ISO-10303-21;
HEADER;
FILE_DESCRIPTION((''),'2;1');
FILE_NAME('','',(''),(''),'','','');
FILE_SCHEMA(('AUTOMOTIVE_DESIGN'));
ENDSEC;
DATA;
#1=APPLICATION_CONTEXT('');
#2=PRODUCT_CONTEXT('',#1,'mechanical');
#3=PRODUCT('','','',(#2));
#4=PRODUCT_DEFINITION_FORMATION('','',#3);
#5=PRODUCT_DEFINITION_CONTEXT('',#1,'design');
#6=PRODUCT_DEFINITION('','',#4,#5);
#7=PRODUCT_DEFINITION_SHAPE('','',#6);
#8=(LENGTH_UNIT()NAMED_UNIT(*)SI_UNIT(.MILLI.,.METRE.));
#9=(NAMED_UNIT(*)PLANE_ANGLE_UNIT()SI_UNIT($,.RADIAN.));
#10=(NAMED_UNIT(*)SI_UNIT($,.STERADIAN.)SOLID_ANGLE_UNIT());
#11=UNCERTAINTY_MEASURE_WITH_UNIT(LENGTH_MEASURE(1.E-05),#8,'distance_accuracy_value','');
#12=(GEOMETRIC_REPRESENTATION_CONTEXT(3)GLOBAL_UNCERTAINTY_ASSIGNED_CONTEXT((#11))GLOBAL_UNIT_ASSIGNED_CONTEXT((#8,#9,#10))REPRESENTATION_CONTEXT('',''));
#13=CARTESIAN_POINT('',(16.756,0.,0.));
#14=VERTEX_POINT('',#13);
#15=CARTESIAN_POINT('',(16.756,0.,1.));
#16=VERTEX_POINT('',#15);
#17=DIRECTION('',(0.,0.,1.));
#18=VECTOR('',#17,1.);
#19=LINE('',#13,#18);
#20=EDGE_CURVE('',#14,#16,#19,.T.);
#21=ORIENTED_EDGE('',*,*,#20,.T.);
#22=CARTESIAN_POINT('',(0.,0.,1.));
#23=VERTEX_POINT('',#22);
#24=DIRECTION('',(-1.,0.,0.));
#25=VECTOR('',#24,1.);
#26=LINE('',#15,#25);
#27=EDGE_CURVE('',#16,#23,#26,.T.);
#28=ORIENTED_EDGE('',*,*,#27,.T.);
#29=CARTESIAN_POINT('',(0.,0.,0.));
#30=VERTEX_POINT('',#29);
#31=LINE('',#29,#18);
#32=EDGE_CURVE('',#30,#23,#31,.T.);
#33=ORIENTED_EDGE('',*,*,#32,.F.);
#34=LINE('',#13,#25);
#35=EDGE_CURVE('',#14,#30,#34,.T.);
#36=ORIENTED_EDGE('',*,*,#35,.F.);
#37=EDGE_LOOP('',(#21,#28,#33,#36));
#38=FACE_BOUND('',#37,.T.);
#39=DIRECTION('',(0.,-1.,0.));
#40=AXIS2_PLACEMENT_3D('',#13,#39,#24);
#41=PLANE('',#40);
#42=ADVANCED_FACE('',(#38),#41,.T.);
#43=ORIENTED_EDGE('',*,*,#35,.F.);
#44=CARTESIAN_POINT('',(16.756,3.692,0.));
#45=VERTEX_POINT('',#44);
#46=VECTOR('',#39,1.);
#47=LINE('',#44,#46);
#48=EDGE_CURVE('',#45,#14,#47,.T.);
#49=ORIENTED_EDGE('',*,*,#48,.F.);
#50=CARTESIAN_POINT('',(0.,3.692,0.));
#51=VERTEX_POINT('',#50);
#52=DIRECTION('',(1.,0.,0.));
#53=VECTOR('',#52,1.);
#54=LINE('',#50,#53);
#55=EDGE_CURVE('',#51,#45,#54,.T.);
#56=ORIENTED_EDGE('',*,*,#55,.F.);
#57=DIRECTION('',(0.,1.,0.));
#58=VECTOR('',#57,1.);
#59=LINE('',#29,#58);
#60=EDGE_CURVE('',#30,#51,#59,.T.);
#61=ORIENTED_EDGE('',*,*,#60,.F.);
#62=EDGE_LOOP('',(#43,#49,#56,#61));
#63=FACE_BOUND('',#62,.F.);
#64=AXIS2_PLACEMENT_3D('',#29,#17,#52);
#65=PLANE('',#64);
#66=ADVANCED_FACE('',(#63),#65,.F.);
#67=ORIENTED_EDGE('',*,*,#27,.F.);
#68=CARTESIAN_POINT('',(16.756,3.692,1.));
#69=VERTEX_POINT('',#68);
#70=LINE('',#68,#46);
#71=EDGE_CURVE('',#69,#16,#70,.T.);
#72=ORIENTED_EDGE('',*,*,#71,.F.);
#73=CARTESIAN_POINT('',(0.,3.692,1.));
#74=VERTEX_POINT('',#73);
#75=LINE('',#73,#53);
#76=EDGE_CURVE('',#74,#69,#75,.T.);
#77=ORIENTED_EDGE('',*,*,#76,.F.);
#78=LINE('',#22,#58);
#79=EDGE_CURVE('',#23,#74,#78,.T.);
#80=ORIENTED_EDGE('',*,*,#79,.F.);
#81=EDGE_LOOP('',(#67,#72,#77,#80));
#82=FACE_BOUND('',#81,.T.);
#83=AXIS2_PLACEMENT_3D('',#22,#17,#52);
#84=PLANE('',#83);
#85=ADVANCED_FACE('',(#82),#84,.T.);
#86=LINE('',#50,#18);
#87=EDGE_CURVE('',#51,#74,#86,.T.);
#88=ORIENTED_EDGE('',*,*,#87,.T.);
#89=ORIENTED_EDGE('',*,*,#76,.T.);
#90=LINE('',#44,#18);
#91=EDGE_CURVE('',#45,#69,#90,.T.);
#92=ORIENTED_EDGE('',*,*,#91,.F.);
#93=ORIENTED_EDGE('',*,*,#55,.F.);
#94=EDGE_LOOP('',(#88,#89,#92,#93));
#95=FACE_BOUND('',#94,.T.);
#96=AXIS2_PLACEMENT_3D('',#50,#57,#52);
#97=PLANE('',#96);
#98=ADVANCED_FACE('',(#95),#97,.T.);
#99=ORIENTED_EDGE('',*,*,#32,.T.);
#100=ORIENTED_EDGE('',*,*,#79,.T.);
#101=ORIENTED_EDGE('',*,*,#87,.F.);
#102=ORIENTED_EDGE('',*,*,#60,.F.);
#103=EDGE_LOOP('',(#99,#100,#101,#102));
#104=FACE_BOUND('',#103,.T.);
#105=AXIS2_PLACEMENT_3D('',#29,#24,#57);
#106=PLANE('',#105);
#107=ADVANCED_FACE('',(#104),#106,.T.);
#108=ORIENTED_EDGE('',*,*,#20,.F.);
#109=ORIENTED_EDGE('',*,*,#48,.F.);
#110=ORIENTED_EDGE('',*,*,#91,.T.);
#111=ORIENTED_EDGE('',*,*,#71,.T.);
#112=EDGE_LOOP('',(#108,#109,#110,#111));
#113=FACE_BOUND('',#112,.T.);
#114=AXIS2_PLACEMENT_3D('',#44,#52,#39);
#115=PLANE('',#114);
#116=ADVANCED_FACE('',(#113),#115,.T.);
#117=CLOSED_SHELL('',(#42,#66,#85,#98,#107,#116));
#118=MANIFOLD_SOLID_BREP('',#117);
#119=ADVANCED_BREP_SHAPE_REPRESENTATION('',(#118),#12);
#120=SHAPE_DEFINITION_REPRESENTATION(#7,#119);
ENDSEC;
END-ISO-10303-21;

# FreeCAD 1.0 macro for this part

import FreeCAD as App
import Part
import Sketcher
from FreeCAD import Vector

doc = App.newDocument("Part")
body = doc.addObject("PartDesign::Body", "Body")

# Sketch on XY plane
sketch1 = body.newObject("Sketcher::SketchObject", "Sketch")
sketch1.AttachmentSupport = (doc.getObject("XY_Plane"), [""])
sketch1.MapMode = "FlatFace"
sketch1.addGeometry(Part.LineSegment(Vector(16.8, 3.7, 0), Vector(0, 3.7, 0)), False)
sketch1.addGeometry(Part.LineSegment(Vector(0, 3.7, 0), Vector(0, 0, 0)), False)
sketch1.addGeometry(Part.LineSegment(Vector(0, 0, 0), Vector(16.8, 0, 0)), False)
sketch1.addGeometry(Part.LineSegment(Vector(16.8, 0, 0), Vector(16.8, 3.7, 0)), False)
sketch1.addConstraint(Sketcher.Constraint("Coincident", 0, 2, 1, 1))
sketch1.addConstraint(Sketcher.Constraint("Coincident", 1, 2, 2, 1))
sketch1.addConstraint(Sketcher.Constraint("Coincident", 2, 2, 3, 1))
sketch1.addConstraint(Sketcher.Constraint("Coincident", 3, 2, 0, 1))
sketch1.addConstraint(Sketcher.Constraint("Horizontal", 0))
sketch1.addConstraint(Sketcher.Constraint("Vertical", 1))
sketch1.addConstraint(Sketcher.Constraint("Horizontal", 2))
sketch1.addConstraint(Sketcher.Constraint("Vertical", 3))
sketch1.addConstraint(Sketcher.Constraint("Coincident", 1, 2, -1, 1))
sketch1.addConstraint(Sketcher.Constraint("DistanceX", 0, 2, 0, 1, 16.756))
sketch1.addConstraint(Sketcher.Constraint("DistanceY", 1, 2, 1, 1, 3.692))
pad1 = body.newObject("PartDesign::Pad", "Pad")
pad1.Profile = sketch1
pad1.Length = 1

doc.recompute()
